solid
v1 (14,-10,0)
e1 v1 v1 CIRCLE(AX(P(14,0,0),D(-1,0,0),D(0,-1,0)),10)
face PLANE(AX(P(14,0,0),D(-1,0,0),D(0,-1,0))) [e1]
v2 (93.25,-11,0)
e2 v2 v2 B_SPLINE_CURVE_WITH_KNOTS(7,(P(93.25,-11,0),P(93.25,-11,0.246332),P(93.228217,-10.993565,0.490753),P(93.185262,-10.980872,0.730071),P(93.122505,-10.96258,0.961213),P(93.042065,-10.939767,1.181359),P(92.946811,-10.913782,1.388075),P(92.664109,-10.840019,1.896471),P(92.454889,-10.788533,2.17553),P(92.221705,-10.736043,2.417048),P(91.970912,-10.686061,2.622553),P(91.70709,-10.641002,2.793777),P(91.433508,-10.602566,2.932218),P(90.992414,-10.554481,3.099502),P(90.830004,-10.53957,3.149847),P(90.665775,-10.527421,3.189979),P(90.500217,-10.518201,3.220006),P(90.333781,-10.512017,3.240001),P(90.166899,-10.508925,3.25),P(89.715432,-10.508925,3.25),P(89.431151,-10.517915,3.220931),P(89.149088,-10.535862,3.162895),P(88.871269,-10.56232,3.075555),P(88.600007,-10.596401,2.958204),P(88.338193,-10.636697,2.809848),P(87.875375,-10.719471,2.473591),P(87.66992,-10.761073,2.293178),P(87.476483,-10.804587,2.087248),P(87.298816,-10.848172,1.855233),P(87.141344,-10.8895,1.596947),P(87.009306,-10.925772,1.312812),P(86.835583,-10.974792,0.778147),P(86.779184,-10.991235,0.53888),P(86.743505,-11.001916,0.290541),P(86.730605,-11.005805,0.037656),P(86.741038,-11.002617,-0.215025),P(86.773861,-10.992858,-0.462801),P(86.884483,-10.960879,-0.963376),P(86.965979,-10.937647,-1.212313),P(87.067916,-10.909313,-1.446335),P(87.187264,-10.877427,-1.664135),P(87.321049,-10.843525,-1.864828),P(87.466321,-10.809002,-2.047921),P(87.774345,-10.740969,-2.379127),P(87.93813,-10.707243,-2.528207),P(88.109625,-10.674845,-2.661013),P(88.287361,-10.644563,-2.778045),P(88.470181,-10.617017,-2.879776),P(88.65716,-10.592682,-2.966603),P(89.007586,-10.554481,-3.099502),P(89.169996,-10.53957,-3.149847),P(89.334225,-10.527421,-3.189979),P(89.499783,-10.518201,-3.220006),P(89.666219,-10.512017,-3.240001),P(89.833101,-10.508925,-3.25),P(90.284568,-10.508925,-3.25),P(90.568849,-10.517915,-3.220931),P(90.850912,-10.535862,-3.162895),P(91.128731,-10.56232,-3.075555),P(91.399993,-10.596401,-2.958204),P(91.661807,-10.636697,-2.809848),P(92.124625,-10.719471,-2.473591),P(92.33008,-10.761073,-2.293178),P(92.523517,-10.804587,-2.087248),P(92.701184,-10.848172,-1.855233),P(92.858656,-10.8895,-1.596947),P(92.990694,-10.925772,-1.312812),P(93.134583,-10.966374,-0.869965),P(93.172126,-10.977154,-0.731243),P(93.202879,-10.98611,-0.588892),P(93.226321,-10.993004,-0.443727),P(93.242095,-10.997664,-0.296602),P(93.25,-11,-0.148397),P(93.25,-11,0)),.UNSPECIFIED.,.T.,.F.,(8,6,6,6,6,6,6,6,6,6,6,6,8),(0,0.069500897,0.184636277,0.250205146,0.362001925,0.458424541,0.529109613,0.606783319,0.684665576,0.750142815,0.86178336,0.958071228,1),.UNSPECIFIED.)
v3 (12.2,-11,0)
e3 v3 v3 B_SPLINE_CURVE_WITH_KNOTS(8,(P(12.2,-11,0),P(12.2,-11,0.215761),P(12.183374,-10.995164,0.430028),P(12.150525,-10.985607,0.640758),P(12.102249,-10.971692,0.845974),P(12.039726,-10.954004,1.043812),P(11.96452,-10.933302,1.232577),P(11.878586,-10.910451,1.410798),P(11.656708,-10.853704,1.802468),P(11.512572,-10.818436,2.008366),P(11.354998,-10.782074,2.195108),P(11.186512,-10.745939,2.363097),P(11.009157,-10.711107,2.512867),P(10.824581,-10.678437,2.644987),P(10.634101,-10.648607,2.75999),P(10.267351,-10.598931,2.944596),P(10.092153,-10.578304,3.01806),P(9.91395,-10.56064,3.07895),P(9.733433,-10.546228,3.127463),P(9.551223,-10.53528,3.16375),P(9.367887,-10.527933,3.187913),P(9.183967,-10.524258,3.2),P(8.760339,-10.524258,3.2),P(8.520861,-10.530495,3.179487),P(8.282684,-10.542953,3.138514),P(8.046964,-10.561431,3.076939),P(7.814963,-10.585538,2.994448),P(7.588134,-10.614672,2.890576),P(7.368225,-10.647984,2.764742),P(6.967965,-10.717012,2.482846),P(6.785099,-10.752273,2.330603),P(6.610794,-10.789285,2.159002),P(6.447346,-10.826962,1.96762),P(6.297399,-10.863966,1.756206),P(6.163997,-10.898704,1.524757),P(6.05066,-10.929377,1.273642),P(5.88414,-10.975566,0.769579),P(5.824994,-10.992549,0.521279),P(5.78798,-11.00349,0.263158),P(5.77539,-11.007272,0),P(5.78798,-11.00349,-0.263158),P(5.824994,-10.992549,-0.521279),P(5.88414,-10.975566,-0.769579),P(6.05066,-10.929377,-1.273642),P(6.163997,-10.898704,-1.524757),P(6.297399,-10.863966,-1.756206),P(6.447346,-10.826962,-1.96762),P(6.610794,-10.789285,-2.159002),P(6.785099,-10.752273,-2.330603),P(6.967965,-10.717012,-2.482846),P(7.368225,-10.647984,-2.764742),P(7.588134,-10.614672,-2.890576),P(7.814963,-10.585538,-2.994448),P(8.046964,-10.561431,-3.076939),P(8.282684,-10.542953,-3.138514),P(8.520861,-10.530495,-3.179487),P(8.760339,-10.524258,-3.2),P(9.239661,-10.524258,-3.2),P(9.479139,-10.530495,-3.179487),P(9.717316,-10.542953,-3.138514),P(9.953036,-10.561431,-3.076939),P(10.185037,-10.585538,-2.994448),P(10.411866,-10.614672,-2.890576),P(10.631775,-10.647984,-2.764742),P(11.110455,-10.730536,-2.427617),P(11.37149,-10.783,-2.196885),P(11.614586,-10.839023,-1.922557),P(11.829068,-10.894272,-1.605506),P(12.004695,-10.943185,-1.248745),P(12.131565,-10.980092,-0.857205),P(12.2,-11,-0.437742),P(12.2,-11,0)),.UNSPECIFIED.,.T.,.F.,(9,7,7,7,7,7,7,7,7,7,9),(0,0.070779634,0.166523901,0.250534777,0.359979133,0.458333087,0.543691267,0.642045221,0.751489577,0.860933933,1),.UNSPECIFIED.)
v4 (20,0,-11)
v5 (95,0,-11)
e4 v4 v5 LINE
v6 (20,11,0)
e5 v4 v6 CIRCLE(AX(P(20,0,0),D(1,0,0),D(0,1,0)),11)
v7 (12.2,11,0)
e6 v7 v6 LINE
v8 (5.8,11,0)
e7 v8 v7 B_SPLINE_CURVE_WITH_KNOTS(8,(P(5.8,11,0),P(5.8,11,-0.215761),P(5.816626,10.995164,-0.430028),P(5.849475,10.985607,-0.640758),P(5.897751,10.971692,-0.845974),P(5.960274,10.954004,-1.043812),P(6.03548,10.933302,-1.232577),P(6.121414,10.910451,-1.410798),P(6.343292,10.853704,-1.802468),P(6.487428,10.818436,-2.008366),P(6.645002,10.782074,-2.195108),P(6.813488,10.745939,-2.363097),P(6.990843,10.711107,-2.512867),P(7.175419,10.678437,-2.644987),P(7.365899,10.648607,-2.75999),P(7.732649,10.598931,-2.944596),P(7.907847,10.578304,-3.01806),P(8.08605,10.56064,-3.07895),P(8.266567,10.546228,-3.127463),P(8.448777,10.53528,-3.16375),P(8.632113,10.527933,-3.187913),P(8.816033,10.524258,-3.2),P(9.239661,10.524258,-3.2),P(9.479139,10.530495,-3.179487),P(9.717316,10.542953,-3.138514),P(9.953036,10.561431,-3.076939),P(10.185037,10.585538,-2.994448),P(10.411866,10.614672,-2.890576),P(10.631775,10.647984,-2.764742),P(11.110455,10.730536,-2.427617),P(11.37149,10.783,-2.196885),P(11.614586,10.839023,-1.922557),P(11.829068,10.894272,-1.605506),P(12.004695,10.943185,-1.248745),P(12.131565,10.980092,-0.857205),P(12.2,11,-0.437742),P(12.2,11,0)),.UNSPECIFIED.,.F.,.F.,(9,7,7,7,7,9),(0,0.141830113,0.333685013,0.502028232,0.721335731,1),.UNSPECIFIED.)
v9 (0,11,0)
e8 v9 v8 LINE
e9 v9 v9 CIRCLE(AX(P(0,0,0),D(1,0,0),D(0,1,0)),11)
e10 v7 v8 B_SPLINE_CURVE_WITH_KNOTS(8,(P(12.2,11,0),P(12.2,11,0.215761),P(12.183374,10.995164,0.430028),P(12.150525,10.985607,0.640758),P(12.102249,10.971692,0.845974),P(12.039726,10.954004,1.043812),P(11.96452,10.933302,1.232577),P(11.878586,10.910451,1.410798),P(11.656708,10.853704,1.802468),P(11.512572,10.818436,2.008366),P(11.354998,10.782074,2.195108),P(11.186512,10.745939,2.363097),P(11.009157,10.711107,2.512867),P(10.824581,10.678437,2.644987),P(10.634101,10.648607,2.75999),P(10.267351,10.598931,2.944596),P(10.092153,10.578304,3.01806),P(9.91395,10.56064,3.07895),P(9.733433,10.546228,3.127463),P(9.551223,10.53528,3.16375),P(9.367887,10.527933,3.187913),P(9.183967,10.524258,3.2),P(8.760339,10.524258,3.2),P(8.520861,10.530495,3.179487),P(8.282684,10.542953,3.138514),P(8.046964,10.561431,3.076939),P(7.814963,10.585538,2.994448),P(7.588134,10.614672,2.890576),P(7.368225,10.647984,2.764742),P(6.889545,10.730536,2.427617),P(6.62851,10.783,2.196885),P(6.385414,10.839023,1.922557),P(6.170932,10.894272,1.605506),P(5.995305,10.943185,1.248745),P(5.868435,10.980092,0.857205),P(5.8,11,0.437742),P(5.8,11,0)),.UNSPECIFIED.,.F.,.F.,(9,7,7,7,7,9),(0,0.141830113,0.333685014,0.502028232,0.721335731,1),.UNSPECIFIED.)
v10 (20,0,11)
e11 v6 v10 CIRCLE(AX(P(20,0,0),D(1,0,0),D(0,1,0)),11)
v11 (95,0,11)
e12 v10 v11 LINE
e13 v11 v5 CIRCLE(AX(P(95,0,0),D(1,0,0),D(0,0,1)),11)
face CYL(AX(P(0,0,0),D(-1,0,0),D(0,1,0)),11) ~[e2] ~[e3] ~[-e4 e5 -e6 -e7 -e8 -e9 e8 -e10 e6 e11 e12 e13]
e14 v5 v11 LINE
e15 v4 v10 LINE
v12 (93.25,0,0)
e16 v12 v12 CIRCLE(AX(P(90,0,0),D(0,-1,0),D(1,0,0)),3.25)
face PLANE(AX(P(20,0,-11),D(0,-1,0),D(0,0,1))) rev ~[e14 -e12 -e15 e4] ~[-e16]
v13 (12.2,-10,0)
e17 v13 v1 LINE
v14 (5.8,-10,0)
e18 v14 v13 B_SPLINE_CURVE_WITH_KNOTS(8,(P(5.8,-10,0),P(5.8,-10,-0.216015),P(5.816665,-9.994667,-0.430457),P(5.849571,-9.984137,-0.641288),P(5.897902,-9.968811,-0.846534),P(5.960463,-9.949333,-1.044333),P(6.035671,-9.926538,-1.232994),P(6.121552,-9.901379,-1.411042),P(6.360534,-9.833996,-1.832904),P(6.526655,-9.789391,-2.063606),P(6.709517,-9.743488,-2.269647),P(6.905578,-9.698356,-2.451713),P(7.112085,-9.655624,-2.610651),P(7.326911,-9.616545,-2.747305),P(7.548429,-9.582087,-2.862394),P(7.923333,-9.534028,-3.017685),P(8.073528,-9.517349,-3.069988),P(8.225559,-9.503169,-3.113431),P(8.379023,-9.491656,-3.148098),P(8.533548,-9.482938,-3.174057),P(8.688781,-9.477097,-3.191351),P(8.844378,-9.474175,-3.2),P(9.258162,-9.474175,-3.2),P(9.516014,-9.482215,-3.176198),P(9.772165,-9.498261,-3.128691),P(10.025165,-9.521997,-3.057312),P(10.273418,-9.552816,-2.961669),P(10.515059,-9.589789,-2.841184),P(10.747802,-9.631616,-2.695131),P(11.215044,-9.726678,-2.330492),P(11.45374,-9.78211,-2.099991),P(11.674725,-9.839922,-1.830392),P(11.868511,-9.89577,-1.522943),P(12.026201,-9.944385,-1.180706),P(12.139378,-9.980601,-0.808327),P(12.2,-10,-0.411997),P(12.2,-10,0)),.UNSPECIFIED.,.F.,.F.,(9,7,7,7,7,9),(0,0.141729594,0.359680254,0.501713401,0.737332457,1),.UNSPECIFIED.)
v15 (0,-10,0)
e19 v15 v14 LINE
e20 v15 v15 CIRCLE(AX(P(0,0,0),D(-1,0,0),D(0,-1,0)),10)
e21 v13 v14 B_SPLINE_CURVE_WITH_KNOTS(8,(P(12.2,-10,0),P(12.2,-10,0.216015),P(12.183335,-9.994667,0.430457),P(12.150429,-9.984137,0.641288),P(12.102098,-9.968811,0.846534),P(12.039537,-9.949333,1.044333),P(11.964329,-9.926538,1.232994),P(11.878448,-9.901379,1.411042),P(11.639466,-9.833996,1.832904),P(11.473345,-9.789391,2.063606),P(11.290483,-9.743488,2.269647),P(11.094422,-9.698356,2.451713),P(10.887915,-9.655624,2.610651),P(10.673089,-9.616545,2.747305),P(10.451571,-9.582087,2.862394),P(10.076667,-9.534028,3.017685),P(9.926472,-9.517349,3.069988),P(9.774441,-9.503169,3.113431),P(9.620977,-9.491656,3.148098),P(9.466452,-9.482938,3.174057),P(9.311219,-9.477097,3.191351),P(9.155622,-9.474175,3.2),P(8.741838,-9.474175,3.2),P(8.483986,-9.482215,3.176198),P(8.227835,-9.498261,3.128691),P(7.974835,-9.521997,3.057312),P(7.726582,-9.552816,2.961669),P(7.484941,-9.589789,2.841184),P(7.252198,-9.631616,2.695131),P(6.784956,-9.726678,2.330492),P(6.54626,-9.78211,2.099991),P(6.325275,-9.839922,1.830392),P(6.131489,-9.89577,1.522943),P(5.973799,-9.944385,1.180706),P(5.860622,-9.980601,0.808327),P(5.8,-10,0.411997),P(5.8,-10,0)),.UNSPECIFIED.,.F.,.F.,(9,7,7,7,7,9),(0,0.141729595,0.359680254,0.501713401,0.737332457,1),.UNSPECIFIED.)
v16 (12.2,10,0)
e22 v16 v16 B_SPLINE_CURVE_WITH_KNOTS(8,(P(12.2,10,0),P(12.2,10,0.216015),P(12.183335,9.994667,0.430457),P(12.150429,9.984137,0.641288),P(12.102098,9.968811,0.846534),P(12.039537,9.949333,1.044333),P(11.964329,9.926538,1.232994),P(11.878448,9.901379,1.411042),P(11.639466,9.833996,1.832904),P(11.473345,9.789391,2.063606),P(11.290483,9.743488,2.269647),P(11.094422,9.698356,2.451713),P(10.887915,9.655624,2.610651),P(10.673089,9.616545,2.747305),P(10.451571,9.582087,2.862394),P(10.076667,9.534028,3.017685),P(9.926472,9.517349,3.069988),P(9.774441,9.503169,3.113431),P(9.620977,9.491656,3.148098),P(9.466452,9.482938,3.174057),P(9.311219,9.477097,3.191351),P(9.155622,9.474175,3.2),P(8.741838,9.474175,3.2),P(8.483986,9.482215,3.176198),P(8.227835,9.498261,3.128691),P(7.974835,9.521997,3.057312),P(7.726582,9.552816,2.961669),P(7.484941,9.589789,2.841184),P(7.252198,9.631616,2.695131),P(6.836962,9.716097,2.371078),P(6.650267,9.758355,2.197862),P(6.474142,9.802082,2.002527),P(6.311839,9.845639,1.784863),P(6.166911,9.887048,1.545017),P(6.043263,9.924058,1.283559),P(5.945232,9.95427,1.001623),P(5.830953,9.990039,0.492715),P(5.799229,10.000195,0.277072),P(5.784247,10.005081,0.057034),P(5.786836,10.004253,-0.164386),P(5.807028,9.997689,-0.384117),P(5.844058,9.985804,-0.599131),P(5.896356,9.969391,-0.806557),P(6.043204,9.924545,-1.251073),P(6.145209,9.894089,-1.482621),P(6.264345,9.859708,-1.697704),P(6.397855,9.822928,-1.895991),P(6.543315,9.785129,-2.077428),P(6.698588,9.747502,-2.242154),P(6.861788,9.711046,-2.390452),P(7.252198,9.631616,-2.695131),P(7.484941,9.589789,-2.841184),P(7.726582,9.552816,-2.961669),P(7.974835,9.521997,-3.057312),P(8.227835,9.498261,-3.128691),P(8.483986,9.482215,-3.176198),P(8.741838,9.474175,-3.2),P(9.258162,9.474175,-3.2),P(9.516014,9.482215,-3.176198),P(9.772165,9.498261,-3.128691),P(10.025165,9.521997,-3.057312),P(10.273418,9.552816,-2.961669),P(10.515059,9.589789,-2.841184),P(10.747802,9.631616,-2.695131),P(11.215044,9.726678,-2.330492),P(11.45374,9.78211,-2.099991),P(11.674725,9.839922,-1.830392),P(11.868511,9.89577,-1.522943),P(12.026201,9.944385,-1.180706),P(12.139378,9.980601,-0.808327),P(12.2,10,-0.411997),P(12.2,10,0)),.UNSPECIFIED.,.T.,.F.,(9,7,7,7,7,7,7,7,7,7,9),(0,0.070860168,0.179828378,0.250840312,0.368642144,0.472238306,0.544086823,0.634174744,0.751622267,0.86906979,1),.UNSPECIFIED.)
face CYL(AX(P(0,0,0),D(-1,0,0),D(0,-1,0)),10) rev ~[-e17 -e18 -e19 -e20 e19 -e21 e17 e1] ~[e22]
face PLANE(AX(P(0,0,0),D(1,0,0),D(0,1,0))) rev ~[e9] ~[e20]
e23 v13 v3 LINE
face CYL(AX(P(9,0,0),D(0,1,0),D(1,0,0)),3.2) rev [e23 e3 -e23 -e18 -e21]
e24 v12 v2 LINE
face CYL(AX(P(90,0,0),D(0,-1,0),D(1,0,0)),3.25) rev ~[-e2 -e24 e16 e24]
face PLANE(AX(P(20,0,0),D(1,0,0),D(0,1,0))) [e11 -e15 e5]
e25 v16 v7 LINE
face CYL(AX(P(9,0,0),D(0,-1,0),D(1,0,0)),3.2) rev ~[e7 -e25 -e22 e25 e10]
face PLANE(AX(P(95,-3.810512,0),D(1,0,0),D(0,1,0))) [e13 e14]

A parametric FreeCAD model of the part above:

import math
import FreeCAD as App
import Part
import Sketcher
Q = App.Units.Quantity

doc = App.newDocument("Part")
body = doc.addObject("PartDesign::Body", "Body")

# Sketch on YZ plane
sketch1 = doc.addObject("Sketcher::SketchObject", "Sketch")
body.addObject(sketch1)
sketch1.AttachmentSupport = (doc.YZ_Plane, [""])
sketch1.MapMode = "FlatFace"
sketch1.addGeometry(Part.Circle(App.Vector(0, 0, 0), App.Vector(0, 0, 1), 11), False)
sketch1.addConstraint(Sketcher.Constraint("Coincident", 0, 3, -1, 1))
sketch1.addConstraint(Sketcher.Constraint("Diameter", 0, Q("22 mm")))
pad1 = doc.addObject("PartDesign::Pad", "Pad")
body.addObject(pad1)
pad1.Profile = sketch1
pad1.Length = 20

# Sketch on YZ plane
sketch2 = doc.addObject("Sketcher::SketchObject", "Sketch001")
body.addObject(sketch2)
sketch2.AttachmentSupport = (doc.YZ_Plane, [""])
sketch2.MapMode = "FlatFace"
sketch2.addGeometry(Part.Circle(App.Vector(0, 0, 0), App.Vector(0, 0, 1), 10), False)
sketch2.addConstraint(Sketcher.Constraint("Coincident", 0, 3, -1, 1))
sketch2.addConstraint(Sketcher.Constraint("Diameter", 0, Q("20 mm")))
pocket1 = doc.addObject("PartDesign::Pocket", "Pocket")
body.addObject(pocket1)
pocket1.Profile = sketch2
pocket1.Length = 14
pocket1.Reversed = True

# Sketch on YZ plane
sketch3 = doc.addObject("Sketcher::SketchObject", "Sketch002")
body.addObject(sketch3)
sketch3.AttachmentSupport = (doc.YZ_Plane, [""])
sketch3.MapMode = "FlatFace"
sketch3.AttachmentOffset = App.Placement(App.Vector(0, 0, 20), App.Rotation())
sketch3.addGeometry(Part.LineSegment(App.Vector(0, -11, 0), App.Vector(0, 11, 0)), False)
sketch3.addGeometry(Part.ArcOfCircle(Part.Circle(App.Vector(0, 0, 0), App.Vector(0, 0, 1), 11), math.radians(90), math.radians(270)), False)
sketch3.addConstraint(Sketcher.Constraint("Coincident", 0, 1, 1, 2))
sketch3.addConstraint(Sketcher.Constraint("Coincident", 1, 1, 0, 2))
sketch3.addConstraint(Sketcher.Constraint("Vertical", 0))
sketch3.addConstraint(Sketcher.Constraint("Coincident", 1, 3, -1, 1))
sketch3.addConstraint(Sketcher.Constraint("PointOnObject", 0, 1, -2))
sketch3.addConstraint(Sketcher.Constraint("Radius", 1, Q("11 mm")))
pad2 = doc.addObject("PartDesign::Pad", "Pad001")
body.addObject(pad2)
pad2.Profile = sketch3
pad2.Length = 75

# Sketch on XZ plane
sketch4 = doc.addObject("Sketcher::SketchObject", "Sketch003")
body.addObject(sketch4)
sketch4.AttachmentSupport = (doc.XZ_Plane, [""])
sketch4.MapMode = "FlatFace"
sketch4.addGeometry(Part.Circle(App.Vector(9, 0, 0), App.Vector(0, 0, 1), 3.2), False)
sketch4.addGeometry(Part.Circle(App.Vector(90, 0, 0), App.Vector(0, 0, 1), 3.2), False)
sketch4.addConstraint(Sketcher.Constraint("PointOnObject", 0, 3, -1))
sketch4.addConstraint(Sketcher.Constraint("PointOnObject", 1, 3, -1))
sketch4.addConstraint(Sketcher.Constraint("Diameter", 0, Q("6.4 mm")))
sketch4.addConstraint(Sketcher.Constraint("Diameter", 1, Q("6.5 mm")))
sketch4.addConstraint(Sketcher.Constraint("DistanceX", -1, 1, 0, 3, Q("9 mm")))
sketch4.addConstraint(Sketcher.Constraint("DistanceX", -1, 1, 1, 3, Q("90 mm")))
pocket2 = doc.addObject("PartDesign::Pocket", "Pocket001")
body.addObject(pocket2)
pocket2.Profile = sketch4
pocket2.Length = 25
pocket2.Midplane = True

doc.recompute()
